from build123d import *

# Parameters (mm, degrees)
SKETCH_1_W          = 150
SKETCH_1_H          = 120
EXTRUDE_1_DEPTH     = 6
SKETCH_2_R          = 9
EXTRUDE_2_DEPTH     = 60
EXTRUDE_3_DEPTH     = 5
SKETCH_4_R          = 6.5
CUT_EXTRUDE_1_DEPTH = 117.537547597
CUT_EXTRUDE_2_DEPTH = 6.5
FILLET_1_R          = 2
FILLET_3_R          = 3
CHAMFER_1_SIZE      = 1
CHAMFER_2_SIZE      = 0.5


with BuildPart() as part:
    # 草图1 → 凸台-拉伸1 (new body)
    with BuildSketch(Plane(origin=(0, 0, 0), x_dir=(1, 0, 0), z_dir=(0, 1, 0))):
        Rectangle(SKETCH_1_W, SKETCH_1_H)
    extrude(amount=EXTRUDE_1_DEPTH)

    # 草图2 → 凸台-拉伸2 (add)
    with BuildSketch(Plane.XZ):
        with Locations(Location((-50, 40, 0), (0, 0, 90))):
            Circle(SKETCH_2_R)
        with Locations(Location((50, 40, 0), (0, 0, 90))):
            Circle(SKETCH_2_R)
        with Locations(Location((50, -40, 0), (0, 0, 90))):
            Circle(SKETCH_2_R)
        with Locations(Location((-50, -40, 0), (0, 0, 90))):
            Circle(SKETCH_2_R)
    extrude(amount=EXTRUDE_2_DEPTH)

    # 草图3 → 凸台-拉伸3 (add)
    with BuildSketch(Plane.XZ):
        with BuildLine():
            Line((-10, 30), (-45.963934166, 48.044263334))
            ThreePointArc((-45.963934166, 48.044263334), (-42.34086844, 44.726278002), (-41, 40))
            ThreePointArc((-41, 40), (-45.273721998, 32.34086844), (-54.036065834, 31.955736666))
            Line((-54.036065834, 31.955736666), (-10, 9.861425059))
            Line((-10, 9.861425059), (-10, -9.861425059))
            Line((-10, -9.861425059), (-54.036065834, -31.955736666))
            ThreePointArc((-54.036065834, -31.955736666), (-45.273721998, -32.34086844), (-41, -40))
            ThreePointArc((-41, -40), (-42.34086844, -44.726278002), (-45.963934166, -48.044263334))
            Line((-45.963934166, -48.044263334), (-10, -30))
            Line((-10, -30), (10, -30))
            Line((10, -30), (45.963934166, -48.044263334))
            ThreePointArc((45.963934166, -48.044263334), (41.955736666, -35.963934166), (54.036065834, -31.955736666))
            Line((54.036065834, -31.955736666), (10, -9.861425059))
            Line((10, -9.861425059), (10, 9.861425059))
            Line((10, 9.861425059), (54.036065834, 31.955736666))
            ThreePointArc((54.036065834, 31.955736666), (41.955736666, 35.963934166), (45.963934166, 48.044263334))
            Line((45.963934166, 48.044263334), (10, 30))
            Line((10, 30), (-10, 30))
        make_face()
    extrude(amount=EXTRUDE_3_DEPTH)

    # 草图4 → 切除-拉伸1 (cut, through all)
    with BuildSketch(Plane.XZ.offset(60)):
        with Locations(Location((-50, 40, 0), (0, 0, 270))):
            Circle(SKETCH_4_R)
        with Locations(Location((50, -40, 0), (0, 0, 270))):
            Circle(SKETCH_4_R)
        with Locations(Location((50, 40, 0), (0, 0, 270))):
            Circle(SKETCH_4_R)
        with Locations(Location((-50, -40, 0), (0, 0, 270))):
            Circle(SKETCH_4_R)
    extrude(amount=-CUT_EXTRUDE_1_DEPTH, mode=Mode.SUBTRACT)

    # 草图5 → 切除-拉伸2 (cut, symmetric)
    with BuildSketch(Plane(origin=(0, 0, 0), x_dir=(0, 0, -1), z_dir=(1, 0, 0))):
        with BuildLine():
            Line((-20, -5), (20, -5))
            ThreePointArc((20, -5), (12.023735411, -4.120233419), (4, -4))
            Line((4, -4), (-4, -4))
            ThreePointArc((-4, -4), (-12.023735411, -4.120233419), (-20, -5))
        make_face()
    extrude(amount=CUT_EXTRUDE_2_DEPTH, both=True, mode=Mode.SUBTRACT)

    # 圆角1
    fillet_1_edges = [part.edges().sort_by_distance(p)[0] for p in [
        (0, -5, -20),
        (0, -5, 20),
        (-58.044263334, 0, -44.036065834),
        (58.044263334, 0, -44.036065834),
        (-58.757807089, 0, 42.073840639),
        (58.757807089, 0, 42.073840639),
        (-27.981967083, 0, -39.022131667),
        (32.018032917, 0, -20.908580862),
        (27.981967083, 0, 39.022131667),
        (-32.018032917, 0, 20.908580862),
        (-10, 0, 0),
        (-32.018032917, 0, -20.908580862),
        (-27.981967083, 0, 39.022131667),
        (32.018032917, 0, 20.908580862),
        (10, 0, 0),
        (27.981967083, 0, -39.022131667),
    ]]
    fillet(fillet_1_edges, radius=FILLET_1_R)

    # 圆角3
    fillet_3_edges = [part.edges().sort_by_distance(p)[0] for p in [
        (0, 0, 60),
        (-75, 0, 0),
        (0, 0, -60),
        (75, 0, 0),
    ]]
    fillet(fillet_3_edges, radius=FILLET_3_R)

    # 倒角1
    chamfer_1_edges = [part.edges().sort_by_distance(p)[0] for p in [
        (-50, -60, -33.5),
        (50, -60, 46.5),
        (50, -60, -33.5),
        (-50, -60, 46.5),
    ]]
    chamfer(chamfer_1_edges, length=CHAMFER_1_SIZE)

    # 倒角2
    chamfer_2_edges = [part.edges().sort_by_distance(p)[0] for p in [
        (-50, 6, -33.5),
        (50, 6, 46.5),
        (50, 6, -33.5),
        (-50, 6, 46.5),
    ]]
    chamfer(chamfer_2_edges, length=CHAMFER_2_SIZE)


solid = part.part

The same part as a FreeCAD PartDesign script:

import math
import FreeCAD as App
import Part
import Sketcher
from FreeCAD import Vector
Q = App.Units.Quantity


def edges_at(feature, points):
    """Names of the edges that pass closest to the given points."""
    edges = feature.Shape.Edges
    near = lambda p: min(range(len(edges)), key=lambda i: edges[i].distToShape(Part.Vertex(*p))[0])
    return sorted({f"Edge{near(p) + 1}" for p in points})

doc = App.newDocument("Part")
body = doc.addObject("PartDesign::Body", "Body")

sketch1 = doc.addObject("Sketcher::SketchObject", "Sketch")
body.addObject(sketch1)
sketch1.AttachmentSupport = (doc.XZ_Plane, [""])
sketch1.MapMode = "FlatFace"
sketch1.addGeometry([
    Part.LineSegment(Vector(-75, -60, 0), Vector(-75, 60, 0)),
    Part.LineSegment(Vector(-75, 60, 0), Vector(75, 60, 0)),
    Part.LineSegment(Vector(75, 60, 0), Vector(75, -60, 0)),
    Part.LineSegment(Vector(75, -60, 0), Vector(-75, -60, 0)),
], False)
sketch1.addConstraint([
    Sketcher.Constraint("Coincident", 0, 2, 1, 1),
    Sketcher.Constraint("Coincident", 1, 2, 2, 1),
    Sketcher.Constraint("Coincident", 2, 2, 3, 1),
    Sketcher.Constraint("Coincident", 3, 2, 0, 1),
    Sketcher.Constraint("Vertical", 0),
    Sketcher.Constraint("Horizontal", 1),
    Sketcher.Constraint("Vertical", 2),
    Sketcher.Constraint("Horizontal", 3),
    Sketcher.Constraint("Symmetric", 0, 2, 2, 2, -1, 1),
    Sketcher.Constraint("DistanceX", 1, 1, 1, 2, Q("150 mm")),
    Sketcher.Constraint("DistanceY", 0, 1, 0, 2, Q("120 mm")),
])
pad1 = doc.addObject("PartDesign::Pad", "Pad")
body.addObject(pad1)
pad1.Profile = sketch1
pad1.Length = 6
pad1.Reversed = True

sketch2 = doc.addObject("Sketcher::SketchObject", "Sketch001")
body.addObject(sketch2)
sketch2.AttachmentSupport = (doc.XZ_Plane, [""])
sketch2.MapMode = "FlatFace"
sketch2.addGeometry([
    Part.Circle(Vector(-50, 40, 0), Vector(0, 0, 1), 9),
    Part.Circle(Vector(50, 40, 0), Vector(0, 0, 1), 9),
    Part.Circle(Vector(50, -40, 0), Vector(0, 0, 1), 9),
    Part.Circle(Vector(-50, -40, 0), Vector(0, 0, 1), 9),
], False)
sketch2.addConstraint([
    Sketcher.Constraint("Equal", 0, 1),
    Sketcher.Constraint("Equal", 1, 2),
    Sketcher.Constraint("Equal", 2, 3),
    Sketcher.Constraint("Symmetric", 0, 3, 2, 3, -1, 1),
    Sketcher.Constraint("Symmetric", 1, 3, 3, 3, -1, 1),
    Sketcher.Constraint("Symmetric", 0, 3, 1, 3, -2),
    Sketcher.Constraint("Diameter", 0, Q("18 mm")),
    Sketcher.Constraint("DistanceX", 0, 3, -1, 1, Q("50 mm")),
    Sketcher.Constraint("DistanceY", -1, 1, 0, 3, Q("40 mm")),
])
pad2 = doc.addObject("PartDesign::Pad", "Pad001")
body.addObject(pad2)
pad2.Profile = sketch2
pad2.Length = 60

sketch3 = doc.addObject("Sketcher::SketchObject", "Sketch002")
body.addObject(sketch3)
sketch3.AttachmentSupport = (doc.XZ_Plane, [""])
sketch3.MapMode = "FlatFace"
sketch3.addGeometry([
    Part.LineSegment(Vector(-10, 30, 0), Vector(-46, 48, 0)),
    Part.ArcOfCircle(Part.Circle(Vector(-50, 40, 0), Vector(0, 0, 1), 9), math.radians(0), math.radians(63)),
    Part.ArcOfCircle(Part.Circle(Vector(-50, 40, 0), Vector(0, 0, 1), 9), math.radians(-117), math.radians(0)),
    Part.LineSegment(Vector(-54, 32, 0), Vector(-10, 10, 0)),
    Part.LineSegment(Vector(-10, 10, 0), Vector(-10, -10, 0)),
    Part.LineSegment(Vector(-10, -10, 0), Vector(-54, -32, 0)),
    Part.ArcOfCircle(Part.Circle(Vector(-50, -40, 0), Vector(0, 0, 1), 9), math.radians(0), math.radians(117)),
    Part.ArcOfCircle(Part.Circle(Vector(-50, -40, 0), Vector(0, 0, 1), 9), math.radians(-63), math.radians(0)),
    Part.LineSegment(Vector(-46, -48, 0), Vector(-10, -30, 0)),
    Part.LineSegment(Vector(-10, -30, 0), Vector(10, -30, 0)),
    Part.LineSegment(Vector(10, -30, 0), Vector(46, -48, 0)),
    Part.ArcOfCircle(Part.Circle(Vector(50, -40, 0), Vector(0, 0, 1), 9), math.radians(63), math.radians(243)),
    Part.LineSegment(Vector(54, -32, 0), Vector(10, -10, 0)),
    Part.LineSegment(Vector(10, -10, 0), Vector(10, 10, 0)),
    Part.LineSegment(Vector(10, 10, 0), Vector(54, 32, 0)),
    Part.ArcOfCircle(Part.Circle(Vector(50, 40, 0), Vector(0, 0, 1), 9), math.radians(117), math.radians(297)),
    Part.LineSegment(Vector(46, 48, 0), Vector(10, 30, 0)),
    Part.LineSegment(Vector(10, 30, 0), Vector(-10, 30, 0)),
], False)
sketch3.addConstraint([
    Sketcher.Constraint("Tangent", 0, 2, 1, 2),
    Sketcher.Constraint("Tangent", 1, 1, 2, 2),
    Sketcher.Constraint("Tangent", 2, 1, 3, 1),
    Sketcher.Constraint("Coincident", 3, 2, 4, 1),
    Sketcher.Constraint("Coincident", 4, 2, 5, 1),
    Sketcher.Constraint("Tangent", 5, 2, 6, 2),
    Sketcher.Constraint("Tangent", 6, 1, 7, 2),
    Sketcher.Constraint("Tangent", 7, 1, 8, 1),
    Sketcher.Constraint("Coincident", 8, 2, 9, 1),
    Sketcher.Constraint("Coincident", 9, 2, 10, 1),
    Sketcher.Constraint("Tangent", 10, 2, 11, 2),
    Sketcher.Constraint("Tangent", 11, 1, 12, 1),
    Sketcher.Constraint("Coincident", 12, 2, 13, 1),
    Sketcher.Constraint("Coincident", 13, 2, 14, 1),
    Sketcher.Constraint("Tangent", 14, 2, 15, 2),
    Sketcher.Constraint("Tangent", 15, 1, 16, 1),
    Sketcher.Constraint("Coincident", 16, 2, 17, 1),
    Sketcher.Constraint("Coincident", 17, 2, 0, 1),
    Sketcher.Constraint("Vertical", 4),
    Sketcher.Constraint("Horizontal", 9),
    Sketcher.Constraint("Vertical", 13),
    Sketcher.Constraint("Horizontal", 17),
    Sketcher.Constraint("Equal", 1, 2),
    Sketcher.Constraint("Equal", 2, 6),
    Sketcher.Constraint("Equal", 6, 7),
    Sketcher.Constraint("Equal", 7, 11),
    Sketcher.Constraint("Equal", 11, 15),
    Sketcher.Constraint("Symmetric", 1, 3, 11, 3, -1, 1),
    Sketcher.Constraint("Symmetric", 6, 3, 15, 3, -1, 1),
    Sketcher.Constraint("Symmetric", 3, 2, 12, 2, -1, 1),
    Sketcher.Constraint("Symmetric", 8, 2, 16, 2, -1, 1),
    Sketcher.Constraint("Symmetric", 6, 3, 11, 3, -2),
    Sketcher.Constraint("Parallel", 0, 3),
    Sketcher.Constraint("Parallel", 5, 8),
    Sketcher.Constraint("Parallel", 3, 10),
    Sketcher.Constraint("Parallel", 8, 14),
    Sketcher.Constraint("Horizontal", 15, 3, 1, 1),
    Sketcher.Constraint("Horizontal", 11, 3, 6, 1),
    Sketcher.Constraint("Horizontal", 7, 1, 10, 2),
    Sketcher.Constraint("Vertical", 4, 2, 8, 2),
    Sketcher.Constraint("Radius", 1, Q("9 mm")),
    Sketcher.Constraint("DistanceX", 9, 1, 9, 2, Q("20 mm")),
    Sketcher.Constraint("DistanceX", 1, 3, -1, 1, Q("50 mm")),
    Sketcher.Constraint("DistanceY", -1, 1, 1, 3, Q("40 mm")),
    Sketcher.Constraint("DistanceY", 8, 2, -1, 1, Q("30 mm")),
])
pad3 = doc.addObject("PartDesign::Pad", "Pad002")
body.addObject(pad3)
pad3.Profile = sketch3
pad3.Length = 5

sketch4 = doc.addObject("Sketcher::SketchObject", "Sketch003")
body.addObject(sketch4)
sketch4.AttachmentSupport = (doc.XZ_Plane, [""])
sketch4.MapMode = "FlatFace"
sketch4.AttachmentOffset = App.Placement(Vector(0, 0, 60), App.Rotation())
sketch4.addGeometry([
    Part.Circle(Vector(-50, 40, 0), Vector(0, 0, 1), 6),
    Part.Circle(Vector(50, -40, 0), Vector(0, 0, 1), 6),
    Part.Circle(Vector(50, 40, 0), Vector(0, 0, 1), 6),
    Part.Circle(Vector(-50, -40, 0), Vector(0, 0, 1), 6),
], False)
sketch4.addConstraint([
    Sketcher.Constraint("Equal", 0, 1),
    Sketcher.Constraint("Equal", 1, 2),
    Sketcher.Constraint("Equal", 2, 3),
    Sketcher.Constraint("Symmetric", 0, 3, 1, 3, -1, 1),
    Sketcher.Constraint("Symmetric", 2, 3, 3, 3, -1, 1),
    Sketcher.Constraint("Symmetric", 0, 3, 2, 3, -2),
    Sketcher.Constraint("Diameter", 0, Q("13 mm")),
    Sketcher.Constraint("DistanceX", 0, 3, -1, 1, Q("50 mm")),
    Sketcher.Constraint("DistanceY", -1, 1, 0, 3, Q("40 mm")),
])
pocket1 = doc.addObject("PartDesign::Pocket", "Pocket")
body.addObject(pocket1)
pocket1.Profile = sketch4
pocket1.Type = "ThroughAll"

sketch5 = doc.addObject("Sketcher::SketchObject", "Sketch004")
body.addObject(sketch5)
sketch5.AttachmentSupport = (doc.YZ_Plane, [""])
sketch5.MapMode = "FlatFace"
sketch5.addGeometry([
    Part.LineSegment(Vector(-5, 20, 0), Vector(-5, -20, 0)),
    Part.ArcOfCircle(Part.Circle(Vector(-89, -7, 0), Vector(0, 0, 1), 85), math.radians(-9.01), math.radians(1.86)),
    Part.LineSegment(Vector(-4, -4, 0), Vector(-4, 4, 0)),
    Part.ArcOfCircle(Part.Circle(Vector(-89, 7, 0), Vector(0, 0, 1), 85), math.radians(-1.86), math.radians(9.01)),
], False)
sketch5.addConstraint([
    Sketcher.Constraint("Coincident", 0, 2, 1, 1),
    Sketcher.Constraint("Coincident", 1, 2, 2, 1),
    Sketcher.Constraint("Coincident", 2, 2, 3, 1),
    Sketcher.Constraint("Coincident", 3, 2, 0, 1),
    Sketcher.Constraint("Vertical", 0),
    Sketcher.Constraint("Vertical", 2),
    Sketcher.Constraint("Equal", 1, 3),
    Sketcher.Constraint("Symmetric", 1, 3, 3, 3, -1),
    Sketcher.Constraint("DistanceY", 0, 2, 0, 1, Q("40 mm")),
    Sketcher.Constraint("DistanceY", 2, 1, 2, 2, Q("8 mm")),
    Sketcher.Constraint("DistanceX", 0, 2, -1, 1, Q("5 mm")),
    Sketcher.Constraint("DistanceX", 1, 2, -1, 1, Q("4 mm")),
    Sketcher.Constraint("Radius", 1, Q("84.616953 mm")),
])
pocket2 = doc.addObject("PartDesign::Pocket", "Pocket001")
body.addObject(pocket2)
pocket2.Profile = sketch5
pocket2.Length = 13
pocket2.Midplane = True
doc.recompute()

fillet = doc.addObject("PartDesign::Fillet", "Fillet")
body.addObject(fillet)
fillet.Base = (pocket2, edges_at(pocket2, [
    (0, -5, -20),
    (0, -5, 20),
    (-58.044, 0, -44.036),
    (58.044, 0, -44.036),
    (-58.758, 0, 42.074),
    (58.758, 0, 42.074),
    (-27.982, 0, -39.022),
    (32.018, 0, -20.909),
    (27.982, 0, 39.022),
    (-32.018, 0, 20.909),
    (-10, 0, 0),
    (-32.018, 0, -20.909),
    (-27.982, 0, 39.022),
    (32.018, 0, 20.909),
    (10, 0, 0),
    (27.982, 0, -39.022),
]))
fillet.Radius = 2
doc.recompute()

fillet2 = doc.addObject("PartDesign::Fillet", "Fillet001")
body.addObject(fillet2)
fillet2.Base = (fillet, edges_at(fillet, [
    (0, 0, 60),
    (-75, 0, 0),
    (0, 0, -60),
    (75, 0, 0),
]))
fillet2.Radius = 3
doc.recompute()

chamfer = doc.addObject("PartDesign::Chamfer", "Chamfer")
body.addObject(chamfer)
chamfer.Base = (fillet2, edges_at(fillet2, [
    (-50, -60, -33.5),
    (50, -60, 46.5),
    (50, -60, -33.5),
    (-50, -60, 46.5),
]))
chamfer.Size = 1
doc.recompute()

chamfer2 = doc.addObject("PartDesign::Chamfer", "Chamfer001")
body.addObject(chamfer2)
chamfer2.Base = (chamfer, edges_at(chamfer, [
    (-50, 6, -33.5),
    (50, 6, 46.5),
    (50, 6, -33.5),
    (-50, 6, 46.5),
]))
chamfer2.Size = 0.5

doc.recompute()
